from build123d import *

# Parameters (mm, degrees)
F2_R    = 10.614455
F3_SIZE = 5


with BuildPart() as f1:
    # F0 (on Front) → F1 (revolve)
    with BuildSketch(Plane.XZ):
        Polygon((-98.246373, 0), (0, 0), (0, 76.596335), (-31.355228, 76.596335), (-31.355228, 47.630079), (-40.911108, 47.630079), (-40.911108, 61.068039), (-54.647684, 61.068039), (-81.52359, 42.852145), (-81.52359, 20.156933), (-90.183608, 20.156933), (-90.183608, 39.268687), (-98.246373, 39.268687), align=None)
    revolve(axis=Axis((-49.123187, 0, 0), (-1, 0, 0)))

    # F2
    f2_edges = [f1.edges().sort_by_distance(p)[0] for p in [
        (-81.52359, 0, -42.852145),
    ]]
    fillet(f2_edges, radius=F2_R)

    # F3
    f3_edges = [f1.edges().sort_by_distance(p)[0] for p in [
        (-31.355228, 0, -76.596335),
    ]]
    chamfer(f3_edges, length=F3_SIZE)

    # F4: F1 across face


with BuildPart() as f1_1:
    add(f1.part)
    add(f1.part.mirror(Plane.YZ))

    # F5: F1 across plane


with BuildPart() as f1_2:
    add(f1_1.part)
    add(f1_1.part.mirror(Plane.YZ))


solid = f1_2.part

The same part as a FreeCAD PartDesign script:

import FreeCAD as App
import Part
import Sketcher
Q = App.Units.Quantity


def edges_at(feature, points):
    """Names of the edges that pass closest to the given points."""
    edges = feature.Shape.Edges
    near = lambda p: min(range(len(edges)), key=lambda i: edges[i].distToShape(Part.Vertex(*p))[0])
    return sorted({f"Edge{near(p) + 1}" for p in points})


def add_polygon(sketch, points):
    """Adds a closed chain of lines whose ends are joined by coincident constraints."""
    first, n = sketch.GeometryCount, len(points)
    for a, b in zip(points, points[1:] + points[:1]):
        sketch.addGeometry(Part.LineSegment(App.Vector(*a, 0), App.Vector(*b, 0)), False)
    for i in range(n):
        sketch.addConstraint(Sketcher.Constraint("Coincident", first + i, 2, first + (i + 1) % n, 1))

doc = App.newDocument("Part")
params = doc.addObject("Spreadsheet::Sheet", "Params")
for row, (alias, value) in enumerate([
    ("revolution_angle", "360 deg"),
    ("fillet_radius", "10.614455 mm"),
    ("chamfer_size", "5 mm"),
], start=1):
    params.set(f"A{row}", alias)
    params.set(f"B{row}", "=" + value)
    params.setAlias(f"B{row}", alias)

body = doc.addObject("PartDesign::Body", "Body")

# Sketch on XZ plane
sketch1 = body.newObject("Sketcher::SketchObject", "Sketch")
sketch1.AttachmentSupport = (doc.getObject("XZ_Plane"), [""])
sketch1.MapMode = "FlatFace"
add_polygon(sketch1, [(-98, 0), (0, 0), (0, 77), (-31, 77), (-31, 48), (-41, 48), (-41, 61), (-55, 61), (-82, 43), (-82, 20), (-90, 20), (-90, 39), (-98, 39)])  # lines 0-12
sketch1.addConstraint([
    Sketcher.Constraint("Horizontal", 0),
    Sketcher.Constraint("Vertical", 1),
    Sketcher.Constraint("Horizontal", 2),
    Sketcher.Constraint("Vertical", 3),
    Sketcher.Constraint("Horizontal", 4),
    Sketcher.Constraint("Vertical", 5),
    Sketcher.Constraint("Horizontal", 6),
    Sketcher.Constraint("Vertical", 8),
    Sketcher.Constraint("Horizontal", 9),
    Sketcher.Constraint("Vertical", 10),
    Sketcher.Constraint("Horizontal", 11),
    Sketcher.Constraint("Vertical", 12),
    Sketcher.Constraint("Coincident", 0, 2, -1, 1),
    Sketcher.Constraint("DistanceX", 2, 2, 2, 1, Q("31.355228 mm")),
    Sketcher.Constraint("DistanceX", 4, 2, 4, 1, Q("9.55588 mm")),
    Sketcher.Constraint("DistanceX", 9, 2, 9, 1, Q("8.660018 mm")),
    Sketcher.Constraint("DistanceY", 5, 1, 5, 2, Q("13.43796 mm")),
    Sketcher.Constraint("DistanceX", 9, 2, 4, 2, Q("49.2725 mm")),
    Sketcher.Constraint("DistanceX", 0, 1, 0, 2, Q("98.246373 mm")),
    Sketcher.Constraint("DistanceX", 6, 2, 6, 1, Q("13.736576 mm")),
    Sketcher.Constraint("DistanceY", 1, 1, 1, 2, Q("76.596335 mm")),
    Sketcher.Constraint("DistanceY", 3, 2, 3, 1, Q("28.966256 mm")),
    Sketcher.Constraint("DistanceY", 8, 2, 8, 1, Q("22.695212 mm")),
    Sketcher.Constraint("DistanceY", 10, 1, 10, 2, Q("19.111754 mm")),
    Sketcher.Constraint("DistanceY", 12, 2, 12, 1, Q("39.268687 mm")),
])
revolution = body.newObject("PartDesign::Revolution", "Revolution")
revolution.Profile = sketch1
revolution.ReferenceAxis = (sketch1, ["H_Axis"])
revolution.setExpression("Angle", "Params.revolution_angle")
doc.recompute()

fillet = body.newObject("PartDesign::Fillet", "Fillet")
fillet.Base = (revolution, edges_at(revolution, [(-81.524, 0, -42.852)]))
fillet.setExpression("Radius", "Params.fillet_radius")
doc.recompute()

chamfer = body.newObject("PartDesign::Chamfer", "Chamfer")
chamfer.Base = (fillet, edges_at(fillet, [(-31.355, 0, -76.596)]))
chamfer.setExpression("Size", "Params.chamfer_size")
body2 = doc.addObject("PartDesign::Body", "Body001")
doc.recompute()

body2.BaseFeature = body
doc.recompute()

mirroring = doc.addObject("Part::Mirroring", "Mirroring")
mirroring.Source = body
mirroring.Base = App.Vector(0, 0, 0)
mirroring.Normal = App.Vector(1, 0, 0)
body3 = doc.addObject("PartDesign::Body", "Body002")
body3.BaseFeature = mirroring
boolean = body2.newObject("PartDesign::Boolean", "Boolean")
boolean.Type = "Fuse"
boolean.addObjects([body3])
doc.recompute()
body4 = doc.addObject("PartDesign::Body", "Body003")
doc.recompute()

body4.BaseFeature = body2
doc.recompute()

mirroring2 = doc.addObject("Part::Mirroring", "Mirroring001")
mirroring2.Source = body2
mirroring2.Base = App.Vector(0, 0, 0)
mirroring2.Normal = App.Vector(1, 0, 0)
body5 = doc.addObject("PartDesign::Body", "Body004")
body5.BaseFeature = mirroring2
boolean2 = body4.newObject("PartDesign::Boolean", "Boolean001")
boolean2.Type = "Fuse"
boolean2.addObjects([body5])
doc.recompute()
mirroring.Visibility = False
mirroring2.Visibility = False

doc.recompute()
